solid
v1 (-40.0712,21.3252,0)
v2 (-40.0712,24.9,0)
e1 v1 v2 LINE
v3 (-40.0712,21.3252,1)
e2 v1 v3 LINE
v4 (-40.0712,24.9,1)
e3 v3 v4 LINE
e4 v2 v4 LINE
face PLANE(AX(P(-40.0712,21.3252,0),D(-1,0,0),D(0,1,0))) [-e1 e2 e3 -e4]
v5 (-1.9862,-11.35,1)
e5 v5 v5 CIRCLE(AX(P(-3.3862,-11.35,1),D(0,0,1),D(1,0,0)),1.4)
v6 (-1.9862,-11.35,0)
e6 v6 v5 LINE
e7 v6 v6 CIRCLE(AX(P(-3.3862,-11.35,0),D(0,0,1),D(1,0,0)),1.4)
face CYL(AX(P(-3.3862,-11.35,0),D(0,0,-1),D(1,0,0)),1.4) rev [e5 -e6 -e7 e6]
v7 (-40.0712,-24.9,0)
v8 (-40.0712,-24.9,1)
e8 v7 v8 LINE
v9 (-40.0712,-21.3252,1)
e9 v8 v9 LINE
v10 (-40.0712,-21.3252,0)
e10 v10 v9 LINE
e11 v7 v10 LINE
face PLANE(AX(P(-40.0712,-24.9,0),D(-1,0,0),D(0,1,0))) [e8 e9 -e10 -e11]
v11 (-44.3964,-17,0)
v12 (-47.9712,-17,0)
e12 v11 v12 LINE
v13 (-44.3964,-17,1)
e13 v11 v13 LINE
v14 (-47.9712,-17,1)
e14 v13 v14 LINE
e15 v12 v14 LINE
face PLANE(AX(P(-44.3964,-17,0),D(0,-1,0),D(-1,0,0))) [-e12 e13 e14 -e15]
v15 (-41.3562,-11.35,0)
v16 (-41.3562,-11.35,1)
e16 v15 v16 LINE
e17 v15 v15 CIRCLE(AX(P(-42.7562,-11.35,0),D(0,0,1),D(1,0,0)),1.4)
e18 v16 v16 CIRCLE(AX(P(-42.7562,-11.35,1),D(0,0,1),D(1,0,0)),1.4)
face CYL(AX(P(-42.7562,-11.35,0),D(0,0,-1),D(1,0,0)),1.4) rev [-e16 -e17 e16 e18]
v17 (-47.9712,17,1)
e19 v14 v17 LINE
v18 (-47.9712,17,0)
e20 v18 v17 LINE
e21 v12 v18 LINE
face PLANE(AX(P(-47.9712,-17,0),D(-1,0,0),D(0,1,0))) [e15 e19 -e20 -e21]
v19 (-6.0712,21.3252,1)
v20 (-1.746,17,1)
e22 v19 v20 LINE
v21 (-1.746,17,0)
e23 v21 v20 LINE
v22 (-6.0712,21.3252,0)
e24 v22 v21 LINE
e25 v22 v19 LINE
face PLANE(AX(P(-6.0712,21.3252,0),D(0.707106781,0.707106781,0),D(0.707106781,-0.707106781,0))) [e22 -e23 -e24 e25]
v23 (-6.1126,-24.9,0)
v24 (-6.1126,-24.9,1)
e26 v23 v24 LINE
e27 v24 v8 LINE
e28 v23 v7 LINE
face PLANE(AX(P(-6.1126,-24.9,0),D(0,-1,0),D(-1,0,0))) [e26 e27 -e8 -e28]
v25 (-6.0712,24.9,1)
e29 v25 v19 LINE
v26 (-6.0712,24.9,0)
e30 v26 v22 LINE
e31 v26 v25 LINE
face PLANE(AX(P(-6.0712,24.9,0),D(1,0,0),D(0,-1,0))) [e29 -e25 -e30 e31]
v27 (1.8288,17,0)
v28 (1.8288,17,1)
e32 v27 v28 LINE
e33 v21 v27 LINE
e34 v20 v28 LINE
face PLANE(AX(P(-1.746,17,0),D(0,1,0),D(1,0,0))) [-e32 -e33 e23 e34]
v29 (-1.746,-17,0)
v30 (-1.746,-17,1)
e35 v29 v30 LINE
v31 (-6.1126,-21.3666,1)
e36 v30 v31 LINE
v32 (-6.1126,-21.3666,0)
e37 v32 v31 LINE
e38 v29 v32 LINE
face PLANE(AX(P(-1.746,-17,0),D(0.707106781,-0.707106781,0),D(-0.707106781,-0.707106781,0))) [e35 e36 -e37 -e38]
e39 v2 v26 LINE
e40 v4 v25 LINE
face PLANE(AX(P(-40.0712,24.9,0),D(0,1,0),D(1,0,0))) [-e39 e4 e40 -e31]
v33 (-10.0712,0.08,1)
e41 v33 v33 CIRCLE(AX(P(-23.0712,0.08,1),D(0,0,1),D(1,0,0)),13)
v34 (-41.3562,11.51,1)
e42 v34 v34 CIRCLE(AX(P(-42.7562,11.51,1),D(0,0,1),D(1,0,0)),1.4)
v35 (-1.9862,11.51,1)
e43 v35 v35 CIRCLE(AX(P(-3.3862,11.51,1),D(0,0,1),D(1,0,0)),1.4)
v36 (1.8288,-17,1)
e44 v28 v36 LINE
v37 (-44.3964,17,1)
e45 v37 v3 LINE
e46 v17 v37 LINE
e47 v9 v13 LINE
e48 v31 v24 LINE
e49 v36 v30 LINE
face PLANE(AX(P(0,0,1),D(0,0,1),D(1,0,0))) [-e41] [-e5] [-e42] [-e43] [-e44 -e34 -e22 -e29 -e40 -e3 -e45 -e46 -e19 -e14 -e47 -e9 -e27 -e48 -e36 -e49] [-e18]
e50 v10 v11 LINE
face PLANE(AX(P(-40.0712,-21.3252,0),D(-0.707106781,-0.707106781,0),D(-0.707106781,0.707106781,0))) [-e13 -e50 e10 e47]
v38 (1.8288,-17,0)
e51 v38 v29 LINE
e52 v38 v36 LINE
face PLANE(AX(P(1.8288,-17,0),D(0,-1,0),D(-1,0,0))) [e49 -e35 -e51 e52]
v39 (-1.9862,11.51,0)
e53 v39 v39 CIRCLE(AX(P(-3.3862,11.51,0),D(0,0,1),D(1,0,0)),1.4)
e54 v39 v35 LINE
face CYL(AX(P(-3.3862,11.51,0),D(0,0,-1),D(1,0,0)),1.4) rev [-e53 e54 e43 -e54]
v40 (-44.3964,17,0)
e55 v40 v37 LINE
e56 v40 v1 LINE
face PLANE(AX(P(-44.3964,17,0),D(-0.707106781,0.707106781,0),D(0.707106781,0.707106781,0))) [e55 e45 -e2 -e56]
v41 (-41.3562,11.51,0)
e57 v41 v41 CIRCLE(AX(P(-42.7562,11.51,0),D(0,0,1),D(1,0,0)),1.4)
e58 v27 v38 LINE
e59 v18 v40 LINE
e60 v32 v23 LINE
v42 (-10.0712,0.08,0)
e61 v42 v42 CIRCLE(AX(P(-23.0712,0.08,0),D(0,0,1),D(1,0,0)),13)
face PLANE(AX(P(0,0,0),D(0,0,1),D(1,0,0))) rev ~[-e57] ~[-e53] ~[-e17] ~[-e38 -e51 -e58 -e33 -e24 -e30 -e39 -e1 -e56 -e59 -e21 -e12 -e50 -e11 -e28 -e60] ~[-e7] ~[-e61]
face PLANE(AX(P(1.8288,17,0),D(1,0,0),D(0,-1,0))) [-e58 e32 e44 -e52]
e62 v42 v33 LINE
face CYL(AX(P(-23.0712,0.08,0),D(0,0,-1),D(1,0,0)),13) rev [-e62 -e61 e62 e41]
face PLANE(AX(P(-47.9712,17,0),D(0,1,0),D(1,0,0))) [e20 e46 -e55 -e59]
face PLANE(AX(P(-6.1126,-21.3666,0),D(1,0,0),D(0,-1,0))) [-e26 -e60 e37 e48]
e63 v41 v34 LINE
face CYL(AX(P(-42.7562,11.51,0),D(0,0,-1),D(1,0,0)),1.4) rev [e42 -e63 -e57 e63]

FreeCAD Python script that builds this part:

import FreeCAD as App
import Part
import Sketcher

V = App.Vector


def add_polygon(sketch, points):
    """Adds a closed chain of lines whose ends are joined by coincident constraints."""
    first, n = sketch.GeometryCount, len(points)
    for a, b in zip(points, points[1:] + points[:1]):
        sketch.addGeometry(Part.LineSegment(App.Vector(*a, 0), App.Vector(*b, 0)), False)
    for i in range(n):
        sketch.addConstraint(Sketcher.Constraint("Coincident", first + i, 2, first + (i + 1) % n, 1))

doc = App.newDocument("Part")
body = doc.addObject("PartDesign::Body", "Body")

sketch1 = doc.addObject("Sketcher::SketchObject", "Sketch")
body.addObject(sketch1)
sketch1.AttachmentSupport = (doc.XY_Plane, [""])
sketch1.MapMode = "FlatFace"
add_polygon(sketch1, [(-40.1, -24.9), (-6.1, -24.9), (-6.1, -21.4), (-1.7, -17), (1.8, -17), (1.8, 17), (-1.7, 17), (-6.1, 21.3), (-6.1, 24.9), (-40.1, 24.9), (-40.1, 21.3), (-44.4, 17), (-48, 17), (-48, -17), (-44.4, -17), (-40.1, -21.3)])
sketch1.addGeometry(Part.Circle(V(-42.8, -11.3, 0), V(0, 0, 1), 1.4), False)
sketch1.addGeometry(Part.Circle(V(-3.4, -11.3, 0), V(0, 0, 1), 1.4), False)
sketch1.addGeometry(Part.Circle(V(-42.8, 11.5, 0), V(0, 0, 1), 1.4), False)
sketch1.addGeometry(Part.Circle(V(-23.1, 0.1, 0), V(0, 0, 1), 13), False)
sketch1.addGeometry(Part.Circle(V(-3.4, 11.5, 0), V(0, 0, 1), 1.4), False)
sketch1.addConstraint(Sketcher.Constraint("Horizontal", 0))
sketch1.addConstraint(Sketcher.Constraint("Vertical", 1))
sketch1.addConstraint(Sketcher.Constraint("Horizontal", 3))
sketch1.addConstraint(Sketcher.Constraint("Vertical", 4))
sketch1.addConstraint(Sketcher.Constraint("Horizontal", 5))
sketch1.addConstraint(Sketcher.Constraint("Vertical", 7))
sketch1.addConstraint(Sketcher.Constraint("Horizontal", 8))
sketch1.addConstraint(Sketcher.Constraint("Vertical", 9))
sketch1.addConstraint(Sketcher.Constraint("Horizontal", 11))
sketch1.addConstraint(Sketcher.Constraint("Vertical", 12))
sketch1.addConstraint(Sketcher.Constraint("Horizontal", 13))
sketch1.addConstraint(Sketcher.Constraint("Vertical", 15))
sketch1.addConstraint(Sketcher.Constraint("Equal", 16, 17))
sketch1.addConstraint(Sketcher.Constraint("Equal", 17, 18))
sketch1.addConstraint(Sketcher.Constraint("Equal", 18, 20))
sketch1.addConstraint(Sketcher.Constraint("Symmetric", 2, 2, 5, 2, -1))
sketch1.addConstraint(Sketcher.Constraint("Symmetric", 10, 2, 13, 2, -1))
sketch1.addConstraint(Sketcher.Constraint("Symmetric", 9, 2, 14, 2, -1))
sketch1.addConstraint(Sketcher.Constraint("Perpendicular", 2, 6))
sketch1.addConstraint(Sketcher.Constraint("Perpendicular", 6, 10))
sketch1.addConstraint(Sketcher.Constraint("Perpendicular", 10, 14))
sketch1.addConstraint(Sketcher.Constraint("Horizontal", 16, 3, 17, 3))
sketch1.addConstraint(Sketcher.Constraint("Horizontal", 18, 3, 20, 3))
sketch1.addConstraint(Sketcher.Constraint("Horizontal", 6, 2, 9, 2))
sketch1.addConstraint(Sketcher.Constraint("Horizontal", 5, 2, 10, 2))
sketch1.addConstraint(Sketcher.Constraint("Vertical", 16, 3, 18, 3))
sketch1.addConstraint(Sketcher.Constraint("Vertical", 17, 3, 20, 3))
sketch1.addConstraint(Sketcher.Constraint("Equal", 5, 11))
sketch1.addConstraint(Sketcher.Constraint("Equal", 8, 4))
sketch1.addConstraint(Sketcher.Constraint("Equal", 13, 7))
sketch1.addConstraint(Sketcher.Constraint("Equal", 9, 15))
sketch1.addConstraint(Sketcher.Constraint("Diameter", 19, 26.0))
sketch1.addConstraint(Sketcher.Constraint("Diameter", 16, 2.8))
sketch1.addConstraint(Sketcher.Constraint("DistanceX", 8, 2, 8, 1, 34.0))
sketch1.addConstraint(Sketcher.Constraint("DistanceX", 19, 3, 6, 2, 17.0))
sketch1.addConstraint(Sketcher.Constraint("DistanceY", 0, 2, -1, 1, 24.9))
sketch1.addConstraint(Sketcher.Constraint("DistanceY", 16, 3, -1, 1, 11.35))
sketch1.addConstraint(Sketcher.Constraint("DistanceY", -1, 1, 18, 3, 11.51))
sketch1.addConstraint(Sketcher.Constraint("DistanceY", -1, 1, 19, 3, 0.08))
sketch1.addConstraint(Sketcher.Constraint("DistanceX", 16, 3, 17, 3, 39.37))
sketch1.addConstraint(Sketcher.Constraint("DistanceX", 0, 1, 0, 2, 33.9586))
sketch1.addConstraint(Sketcher.Constraint("DistanceX", 3, 1, 3, 2, 3.5748))
sketch1.addConstraint(Sketcher.Constraint("DistanceX", 2, 2, -1, 1, 1.746))
sketch1.addConstraint(Sketcher.Constraint("DistanceX", 16, 3, 19, 3, 19.685))
pad1 = doc.addObject("PartDesign::Pad", "Pad")
body.addObject(pad1)
pad1.Profile = sketch1
pad1.Length = 1

doc.recompute()
